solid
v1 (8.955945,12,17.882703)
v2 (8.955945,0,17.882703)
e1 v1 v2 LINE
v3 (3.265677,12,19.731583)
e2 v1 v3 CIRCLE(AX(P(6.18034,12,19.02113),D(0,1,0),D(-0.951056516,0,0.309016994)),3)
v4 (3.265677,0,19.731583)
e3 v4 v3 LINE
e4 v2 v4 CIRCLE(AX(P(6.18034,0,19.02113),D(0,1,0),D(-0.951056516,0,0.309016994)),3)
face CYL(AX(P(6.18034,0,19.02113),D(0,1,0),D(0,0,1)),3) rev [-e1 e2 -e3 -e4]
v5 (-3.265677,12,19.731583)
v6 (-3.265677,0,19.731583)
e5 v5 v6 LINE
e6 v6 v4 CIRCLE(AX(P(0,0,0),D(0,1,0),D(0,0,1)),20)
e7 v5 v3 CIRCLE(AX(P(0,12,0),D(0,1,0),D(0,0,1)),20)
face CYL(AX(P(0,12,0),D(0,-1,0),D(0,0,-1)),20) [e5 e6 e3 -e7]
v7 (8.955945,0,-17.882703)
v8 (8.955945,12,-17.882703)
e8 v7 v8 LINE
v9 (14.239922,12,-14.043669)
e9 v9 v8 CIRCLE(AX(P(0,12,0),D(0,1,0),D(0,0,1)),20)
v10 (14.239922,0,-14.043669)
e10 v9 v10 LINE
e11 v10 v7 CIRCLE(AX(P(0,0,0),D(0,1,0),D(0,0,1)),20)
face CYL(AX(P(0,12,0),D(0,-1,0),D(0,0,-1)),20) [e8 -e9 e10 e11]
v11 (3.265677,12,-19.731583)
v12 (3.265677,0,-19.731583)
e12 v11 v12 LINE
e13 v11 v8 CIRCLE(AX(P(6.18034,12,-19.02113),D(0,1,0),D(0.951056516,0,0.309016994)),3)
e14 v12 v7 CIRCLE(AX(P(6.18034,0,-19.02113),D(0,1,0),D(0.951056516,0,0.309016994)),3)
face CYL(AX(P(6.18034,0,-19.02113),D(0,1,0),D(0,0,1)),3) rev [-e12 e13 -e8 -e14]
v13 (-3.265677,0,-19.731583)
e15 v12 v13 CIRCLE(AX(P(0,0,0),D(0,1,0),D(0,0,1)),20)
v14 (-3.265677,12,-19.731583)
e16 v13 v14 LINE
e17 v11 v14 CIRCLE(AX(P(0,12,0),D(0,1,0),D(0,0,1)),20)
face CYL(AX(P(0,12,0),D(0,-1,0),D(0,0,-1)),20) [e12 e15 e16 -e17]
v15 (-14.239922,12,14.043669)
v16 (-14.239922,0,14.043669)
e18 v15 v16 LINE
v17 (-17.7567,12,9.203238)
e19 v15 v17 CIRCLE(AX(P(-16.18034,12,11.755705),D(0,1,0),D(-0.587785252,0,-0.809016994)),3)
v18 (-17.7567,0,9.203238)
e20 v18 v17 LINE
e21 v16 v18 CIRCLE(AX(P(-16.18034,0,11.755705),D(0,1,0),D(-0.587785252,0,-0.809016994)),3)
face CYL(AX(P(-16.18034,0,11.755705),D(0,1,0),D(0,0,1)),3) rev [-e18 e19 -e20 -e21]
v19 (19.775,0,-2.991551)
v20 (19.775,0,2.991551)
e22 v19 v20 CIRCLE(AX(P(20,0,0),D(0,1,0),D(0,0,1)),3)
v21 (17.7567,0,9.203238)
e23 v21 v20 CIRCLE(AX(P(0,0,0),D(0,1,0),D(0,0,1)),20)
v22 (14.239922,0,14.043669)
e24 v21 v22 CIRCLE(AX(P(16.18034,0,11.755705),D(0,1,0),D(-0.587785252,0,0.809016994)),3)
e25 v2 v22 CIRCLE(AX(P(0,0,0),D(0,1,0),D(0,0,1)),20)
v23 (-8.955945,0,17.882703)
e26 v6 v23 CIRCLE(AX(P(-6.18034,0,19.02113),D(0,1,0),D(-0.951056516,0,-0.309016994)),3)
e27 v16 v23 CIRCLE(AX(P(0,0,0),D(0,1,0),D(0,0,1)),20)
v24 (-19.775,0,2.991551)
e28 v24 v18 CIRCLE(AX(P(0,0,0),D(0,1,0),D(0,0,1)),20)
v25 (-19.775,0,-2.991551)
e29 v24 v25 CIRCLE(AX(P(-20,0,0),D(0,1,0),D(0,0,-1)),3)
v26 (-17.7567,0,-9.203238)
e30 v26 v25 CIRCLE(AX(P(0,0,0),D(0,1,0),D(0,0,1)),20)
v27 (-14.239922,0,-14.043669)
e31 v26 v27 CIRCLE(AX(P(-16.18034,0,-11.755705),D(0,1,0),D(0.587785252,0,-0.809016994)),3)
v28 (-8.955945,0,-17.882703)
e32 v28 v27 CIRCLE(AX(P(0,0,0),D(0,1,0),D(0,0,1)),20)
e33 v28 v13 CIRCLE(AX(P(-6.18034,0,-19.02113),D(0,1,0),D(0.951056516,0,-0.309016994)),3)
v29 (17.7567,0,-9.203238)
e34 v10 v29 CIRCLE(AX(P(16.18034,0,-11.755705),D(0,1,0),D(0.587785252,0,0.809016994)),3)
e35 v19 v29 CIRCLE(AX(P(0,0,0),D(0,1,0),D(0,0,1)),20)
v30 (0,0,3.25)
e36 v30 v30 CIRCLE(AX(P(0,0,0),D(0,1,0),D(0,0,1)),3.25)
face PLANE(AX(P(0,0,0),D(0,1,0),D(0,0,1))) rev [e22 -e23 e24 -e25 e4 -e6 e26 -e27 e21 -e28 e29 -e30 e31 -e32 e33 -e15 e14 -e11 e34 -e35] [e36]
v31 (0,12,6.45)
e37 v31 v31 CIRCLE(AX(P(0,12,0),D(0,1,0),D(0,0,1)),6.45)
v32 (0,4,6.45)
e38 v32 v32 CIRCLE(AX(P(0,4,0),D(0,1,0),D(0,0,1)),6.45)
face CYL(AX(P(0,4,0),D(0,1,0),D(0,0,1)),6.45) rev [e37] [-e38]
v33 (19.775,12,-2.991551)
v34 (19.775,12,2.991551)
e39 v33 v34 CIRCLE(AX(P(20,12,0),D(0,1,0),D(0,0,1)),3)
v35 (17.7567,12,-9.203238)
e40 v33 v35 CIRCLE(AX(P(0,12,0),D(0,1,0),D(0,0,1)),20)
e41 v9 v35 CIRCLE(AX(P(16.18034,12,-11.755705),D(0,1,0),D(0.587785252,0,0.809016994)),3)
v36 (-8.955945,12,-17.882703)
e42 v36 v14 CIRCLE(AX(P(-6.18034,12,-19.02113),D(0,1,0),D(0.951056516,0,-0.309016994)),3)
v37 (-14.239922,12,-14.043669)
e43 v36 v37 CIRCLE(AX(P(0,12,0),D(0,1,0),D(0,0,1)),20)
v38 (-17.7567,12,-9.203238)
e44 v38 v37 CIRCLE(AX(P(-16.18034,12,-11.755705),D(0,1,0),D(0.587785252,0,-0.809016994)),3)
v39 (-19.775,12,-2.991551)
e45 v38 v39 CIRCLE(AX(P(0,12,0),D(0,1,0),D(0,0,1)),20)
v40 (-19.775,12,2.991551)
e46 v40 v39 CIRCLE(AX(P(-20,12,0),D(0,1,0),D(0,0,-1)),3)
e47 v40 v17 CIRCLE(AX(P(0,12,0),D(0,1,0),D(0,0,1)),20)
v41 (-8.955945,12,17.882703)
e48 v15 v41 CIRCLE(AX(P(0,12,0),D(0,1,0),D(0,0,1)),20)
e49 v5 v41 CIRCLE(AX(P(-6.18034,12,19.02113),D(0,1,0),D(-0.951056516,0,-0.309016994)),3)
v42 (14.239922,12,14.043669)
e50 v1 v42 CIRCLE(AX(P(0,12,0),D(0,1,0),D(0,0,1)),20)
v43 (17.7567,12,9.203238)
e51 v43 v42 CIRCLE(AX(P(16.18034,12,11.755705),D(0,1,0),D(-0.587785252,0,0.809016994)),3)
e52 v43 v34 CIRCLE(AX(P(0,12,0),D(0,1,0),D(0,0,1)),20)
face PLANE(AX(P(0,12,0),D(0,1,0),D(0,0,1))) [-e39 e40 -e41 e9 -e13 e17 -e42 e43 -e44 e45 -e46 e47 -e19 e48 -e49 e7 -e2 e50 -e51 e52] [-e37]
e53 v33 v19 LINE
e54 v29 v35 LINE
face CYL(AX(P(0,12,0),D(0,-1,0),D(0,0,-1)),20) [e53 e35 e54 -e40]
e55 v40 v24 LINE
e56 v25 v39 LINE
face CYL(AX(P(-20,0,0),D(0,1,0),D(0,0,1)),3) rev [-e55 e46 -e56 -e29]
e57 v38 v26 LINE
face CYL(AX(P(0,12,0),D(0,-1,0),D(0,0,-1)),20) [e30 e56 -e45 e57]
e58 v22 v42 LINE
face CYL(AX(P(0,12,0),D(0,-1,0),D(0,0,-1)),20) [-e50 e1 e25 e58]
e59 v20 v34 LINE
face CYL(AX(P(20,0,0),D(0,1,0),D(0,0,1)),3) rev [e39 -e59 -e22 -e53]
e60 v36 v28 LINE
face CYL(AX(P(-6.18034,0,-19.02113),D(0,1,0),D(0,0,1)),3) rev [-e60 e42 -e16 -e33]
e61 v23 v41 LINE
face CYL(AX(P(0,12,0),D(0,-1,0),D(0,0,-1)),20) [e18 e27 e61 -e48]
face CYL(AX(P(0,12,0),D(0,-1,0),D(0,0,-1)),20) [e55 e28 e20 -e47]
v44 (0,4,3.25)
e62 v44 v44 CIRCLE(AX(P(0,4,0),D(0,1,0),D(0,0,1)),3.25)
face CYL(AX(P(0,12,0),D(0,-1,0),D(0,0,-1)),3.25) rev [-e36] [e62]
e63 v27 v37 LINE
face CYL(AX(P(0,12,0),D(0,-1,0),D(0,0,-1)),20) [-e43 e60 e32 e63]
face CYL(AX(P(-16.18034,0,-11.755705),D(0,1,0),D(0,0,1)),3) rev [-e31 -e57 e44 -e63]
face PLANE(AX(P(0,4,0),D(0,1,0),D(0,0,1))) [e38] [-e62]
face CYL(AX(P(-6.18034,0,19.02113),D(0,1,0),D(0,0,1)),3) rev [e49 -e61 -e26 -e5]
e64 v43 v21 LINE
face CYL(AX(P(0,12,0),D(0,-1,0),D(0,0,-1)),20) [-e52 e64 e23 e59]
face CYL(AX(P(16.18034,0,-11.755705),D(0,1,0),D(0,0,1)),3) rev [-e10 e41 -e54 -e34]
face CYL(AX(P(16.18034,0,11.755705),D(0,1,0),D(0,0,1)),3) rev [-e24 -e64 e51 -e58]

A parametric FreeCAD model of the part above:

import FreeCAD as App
import Part
import Sketcher
from FreeCAD import Vector

doc = App.newDocument("Part")
params = doc.addObject("Spreadsheet::Sheet", "Params")
for row, (alias, value) in enumerate([
    ("sketch1_diameter", "40 mm"),
    ("sketch1_diameter2", "6.5 mm"),
    ("pad1_length", "12 mm"),
    ("sketch2_diameter", "12.9 mm"),
    ("pocket1_length", "8 mm"),
    ("sketch3_diameter", "6 mm"),
], start=1):
    params.set(f"A{row}", alias)
    params.set(f"B{row}", "=" + value)
    params.setAlias(f"B{row}", alias)

body = doc.addObject("PartDesign::Body", "Body")

sketch1 = doc.addObject("Sketcher::SketchObject", "Sketch")
body.addObject(sketch1)
sketch1.AttachmentSupport = (doc.XZ_Plane, [""])
sketch1.MapMode = "FlatFace"
sketch1.addGeometry([
    Part.Circle(Vector(0, 0, 0), Vector(0, 0, 1), 20),
    Part.Circle(Vector(0, 0, 0), Vector(0, 0, 1), 3.2),
], False)
sketch1.addConstraint([
    Sketcher.Constraint("Coincident", 0, 3, -1, 1),
    Sketcher.Constraint("Coincident", 1, 3, -1, 1),
    Sketcher.Constraint("Diameter", 0, 40.0),
    Sketcher.Constraint("Diameter", 1, 6.5),
])
sketch1.setExpression("Constraints[2]", "Params.sketch1_diameter")
sketch1.setExpression("Constraints[3]", "Params.sketch1_diameter2")
pad1 = doc.addObject("PartDesign::Pad", "Pad")
body.addObject(pad1)
pad1.Profile = sketch1
pad1.setExpression("Length", "Params.pad1_length")
pad1.Reversed = True

sketch2 = doc.addObject("Sketcher::SketchObject", "Sketch001")
body.addObject(sketch2)
sketch2.AttachmentSupport = (doc.XZ_Plane, [""])
sketch2.MapMode = "FlatFace"
sketch2.AttachmentOffset = App.Placement(Vector(0, 0, -12), App.Rotation())
sketch2.addGeometry(Part.Circle(Vector(0, 0, 0), Vector(0, 0, 1), 6), False)
sketch2.addConstraint([
    Sketcher.Constraint("Coincident", 0, 3, -1, 1),
    Sketcher.Constraint("Diameter", 0, 12.9),
])
sketch2.setExpression("Constraints[1]", "Params.sketch2_diameter")
pocket1 = doc.addObject("PartDesign::Pocket", "Pocket")
body.addObject(pocket1)
pocket1.Profile = sketch2
pocket1.setExpression("Length", "Params.pocket1_length")
pocket1.Reversed = True

sketch3 = doc.addObject("Sketcher::SketchObject", "Sketch002")
body.addObject(sketch3)
sketch3.AttachmentSupport = (doc.XZ_Plane, [""])
sketch3.MapMode = "FlatFace"
sketch3.AttachmentOffset = App.Placement(Vector(0, 0, -12), App.Rotation())
sketch3.addGeometry(Part.Circle(Vector(20, 0, 0), Vector(0, 0, 1), 3), False)
sketch3.addConstraint([
    Sketcher.Constraint("PointOnObject", 0, 3, -1),
    Sketcher.Constraint("Diameter", 0, 6.0),
    Sketcher.Constraint("DistanceX", -1, 1, 0, 3, 20.0),
])
sketch3.setExpression("Constraints[1]", "Params.sketch3_diameter")
pocket2 = doc.addObject("PartDesign::Pocket", "Pocket001")
body.addObject(pocket2)
pocket2.Profile = sketch3
pocket2.Type = "ThroughAll"
pocket2.Reversed = True
doc.recompute()

polarpattern = doc.addObject("PartDesign::PolarPattern", "PolarPattern")
body.addObject(polarpattern)
polarpattern.Originals = [pocket2]
polarpattern.Axis = (doc.Y_Axis, [""])
polarpattern.Angle = 360
polarpattern.Occurrences = 10
body.Tip = polarpattern

doc.recompute()
